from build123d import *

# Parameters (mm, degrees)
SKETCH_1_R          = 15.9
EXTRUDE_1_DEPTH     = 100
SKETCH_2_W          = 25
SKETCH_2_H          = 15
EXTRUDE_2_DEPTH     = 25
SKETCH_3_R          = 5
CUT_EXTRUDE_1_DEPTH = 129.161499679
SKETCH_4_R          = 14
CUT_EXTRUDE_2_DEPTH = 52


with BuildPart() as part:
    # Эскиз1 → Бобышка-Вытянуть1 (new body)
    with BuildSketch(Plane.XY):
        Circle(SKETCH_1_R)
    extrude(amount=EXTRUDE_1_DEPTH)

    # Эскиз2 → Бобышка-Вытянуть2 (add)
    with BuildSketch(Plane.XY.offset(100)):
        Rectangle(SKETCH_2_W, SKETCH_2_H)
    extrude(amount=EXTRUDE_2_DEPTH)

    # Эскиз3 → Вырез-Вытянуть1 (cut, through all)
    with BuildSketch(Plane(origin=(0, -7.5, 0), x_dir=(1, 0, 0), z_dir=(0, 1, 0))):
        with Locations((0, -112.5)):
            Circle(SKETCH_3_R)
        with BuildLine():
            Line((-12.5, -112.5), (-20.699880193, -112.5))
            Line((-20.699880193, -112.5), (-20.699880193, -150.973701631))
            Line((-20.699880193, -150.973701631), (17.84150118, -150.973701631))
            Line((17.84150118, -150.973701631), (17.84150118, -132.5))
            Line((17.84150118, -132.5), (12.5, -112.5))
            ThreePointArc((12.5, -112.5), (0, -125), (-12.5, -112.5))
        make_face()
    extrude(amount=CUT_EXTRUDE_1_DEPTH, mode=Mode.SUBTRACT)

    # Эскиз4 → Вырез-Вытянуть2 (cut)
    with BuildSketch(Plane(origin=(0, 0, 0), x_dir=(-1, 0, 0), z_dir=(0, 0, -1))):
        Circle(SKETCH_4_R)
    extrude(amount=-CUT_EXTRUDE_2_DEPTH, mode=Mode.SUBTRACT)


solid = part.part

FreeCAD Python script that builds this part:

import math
import FreeCAD as App
import Part
import Sketcher

doc = App.newDocument("Part")
params = doc.addObject("Spreadsheet::Sheet", "Params")
for row, (alias, value) in enumerate([
    ("sketch1_diameter", "31.8 mm"),
    ("pad1_length", "100 mm"),
    ("sketch2_width", "25 mm"),
    ("sketch2_height", "15 mm"),
    ("pad2_length", "25 mm"),
    ("sketch3_diameter", "10 mm"),
    ("sketch3_radius", "12.5 mm"),
    ("sketch4_diameter", "28 mm"),
    ("pocket2_length", "52 mm"),
], start=1):
    params.set(f"A{row}", alias)
    params.set(f"B{row}", "=" + value)
    params.setAlias(f"B{row}", alias)

body = doc.addObject("PartDesign::Body", "Body")

# Sketch on XY plane
sketch1 = body.newObject("Sketcher::SketchObject", "Sketch")
sketch1.AttachmentSupport = (doc.getObject("XY_Plane"), [""])
sketch1.MapMode = "FlatFace"
sketch1.addGeometry(Part.Circle(App.Vector(0, 0, 0), App.Vector(0, 0, 1), 16), False)
sketch1.addConstraint(Sketcher.Constraint("Coincident", 0, 3, -1, 1))
sketch1.addConstraint(Sketcher.Constraint("Diameter", 0, 31.8))
sketch1.setExpression("Constraints[1]", "Params.sketch1_diameter")
pad1 = body.newObject("PartDesign::Pad", "Pad")
pad1.Profile = sketch1
pad1.setExpression("Length", "Params.pad1_length")

# Sketch on XY plane
sketch2 = body.newObject("Sketcher::SketchObject", "Sketch001")
sketch2.AttachmentSupport = (doc.getObject("XY_Plane"), [""])
sketch2.MapMode = "FlatFace"
sketch2.AttachmentOffset = App.Placement(App.Vector(0, 0, 100), App.Rotation())
sketch2.addGeometry(Part.LineSegment(App.Vector(-12, 8, 0), App.Vector(-12, -8, 0)), False)
sketch2.addGeometry(Part.LineSegment(App.Vector(-12, -8, 0), App.Vector(12, -8, 0)), False)
sketch2.addGeometry(Part.LineSegment(App.Vector(12, -8, 0), App.Vector(12, 8, 0)), False)
sketch2.addGeometry(Part.LineSegment(App.Vector(12, 8, 0), App.Vector(-12, 8, 0)), False)
sketch2.addConstraint(Sketcher.Constraint("Coincident", 0, 2, 1, 1))
sketch2.addConstraint(Sketcher.Constraint("Coincident", 1, 2, 2, 1))
sketch2.addConstraint(Sketcher.Constraint("Coincident", 2, 2, 3, 1))
sketch2.addConstraint(Sketcher.Constraint("Coincident", 3, 2, 0, 1))
sketch2.addConstraint(Sketcher.Constraint("Vertical", 0))
sketch2.addConstraint(Sketcher.Constraint("Horizontal", 1))
sketch2.addConstraint(Sketcher.Constraint("Vertical", 2))
sketch2.addConstraint(Sketcher.Constraint("Horizontal", 3))
sketch2.addConstraint(Sketcher.Constraint("Symmetric", 0, 2, 2, 2, -1, 1))
sketch2.addConstraint(Sketcher.Constraint("DistanceX", 1, 1, 1, 2, 25.0))
sketch2.addConstraint(Sketcher.Constraint("DistanceY", 0, 2, 0, 1, 15.0))
sketch2.setExpression("Constraints[9]", "Params.sketch2_width")
sketch2.setExpression("Constraints[10]", "Params.sketch2_height")
pad2 = body.newObject("PartDesign::Pad", "Pad001")
pad2.Profile = sketch2
pad2.setExpression("Length", "Params.pad2_length")

# Sketch on XZ plane
sketch3 = body.newObject("Sketcher::SketchObject", "Sketch002")
sketch3.AttachmentSupport = (doc.getObject("XZ_Plane"), [""])
sketch3.MapMode = "FlatFace"
sketch3.AttachmentOffset = App.Placement(App.Vector(0, 0, 7.5), App.Rotation())
sketch3.addGeometry(Part.Circle(App.Vector(0, 112, 0), App.Vector(0, 0, 1), 5), False)
sketch3.addGeometry(Part.LineSegment(App.Vector(-12, 112, 0), App.Vector(-21, 112, 0)), False)
sketch3.addGeometry(Part.LineSegment(App.Vector(-21, 112, 0), App.Vector(-21, 151, 0)), False)
sketch3.addGeometry(Part.LineSegment(App.Vector(-21, 151, 0), App.Vector(18, 151, 0)), False)
sketch3.addGeometry(Part.LineSegment(App.Vector(18, 151, 0), App.Vector(18, 132, 0)), False)
sketch3.addGeometry(Part.LineSegment(App.Vector(18, 132, 0), App.Vector(12, 112, 0)), False)
sketch3.addGeometry(Part.ArcOfCircle(Part.Circle(App.Vector(0, 112, 0), App.Vector(0, 0, 1), 12), math.radians(0), math.radians(180)), False)
sketch3.addConstraint(Sketcher.Constraint("Coincident", 1, 2, 2, 1))
sketch3.addConstraint(Sketcher.Constraint("Coincident", 2, 2, 3, 1))
sketch3.addConstraint(Sketcher.Constraint("Coincident", 3, 2, 4, 1))
sketch3.addConstraint(Sketcher.Constraint("Coincident", 4, 2, 5, 1))
sketch3.addConstraint(Sketcher.Constraint("Coincident", 5, 2, 6, 1))
sketch3.addConstraint(Sketcher.Constraint("Coincident", 6, 2, 1, 1))
sketch3.addConstraint(Sketcher.Constraint("Horizontal", 1))
sketch3.addConstraint(Sketcher.Constraint("Vertical", 2))
sketch3.addConstraint(Sketcher.Constraint("Horizontal", 3))
sketch3.addConstraint(Sketcher.Constraint("Vertical", 4))
sketch3.addConstraint(Sketcher.Constraint("Coincident", 6, 3, 0, 3))
sketch3.addConstraint(Sketcher.Constraint("Symmetric", 5, 2, 6, 2, -2))
sketch3.addConstraint(Sketcher.Constraint("Horizontal", 6, 3, 1, 2))
sketch3.addConstraint(Sketcher.Constraint("Diameter", 0, 10.0))
sketch3.addConstraint(Sketcher.Constraint("Radius", 6, 12.5))
sketch3.addConstraint(Sketcher.Constraint("DistanceY", 0, 3, 4, 2, 20.0))
sketch3.addConstraint(Sketcher.Constraint("DistanceY", -1, 1, 0, 3, 112.5))
sketch3.addConstraint(Sketcher.Constraint("DistanceY", 2, 1, 2, 2, 38.473702))
sketch3.addConstraint(Sketcher.Constraint("DistanceX", 1, 2, 1, 1, 8.19988))
sketch3.addConstraint(Sketcher.Constraint("DistanceX", 3, 1, 3, 2, 38.541381))
sketch3.setExpression("Constraints[13]", "Params.sketch3_diameter")
sketch3.setExpression("Constraints[14]", "Params.sketch3_radius")
pocket1 = body.newObject("PartDesign::Pocket", "Pocket")
pocket1.Profile = sketch3
pocket1.Type = "ThroughAll"

# Sketch on XY plane
sketch4 = body.newObject("Sketcher::SketchObject", "Sketch003")
sketch4.AttachmentSupport = (doc.getObject("XY_Plane"), [""])
sketch4.MapMode = "FlatFace"
sketch4.addGeometry(Part.Circle(App.Vector(0, 0, 0), App.Vector(0, 0, 1), 14), False)
sketch4.addConstraint(Sketcher.Constraint("Coincident", 0, 3, -1, 1))
sketch4.addConstraint(Sketcher.Constraint("Diameter", 0, 28.0))
sketch4.setExpression("Constraints[1]", "Params.sketch4_diameter")
pocket2 = body.newObject("PartDesign::Pocket", "Pocket001")
pocket2.Profile = sketch4
pocket2.setExpression("Length", "Params.pocket2_length")
pocket2.Reversed = True

doc.recompute()
